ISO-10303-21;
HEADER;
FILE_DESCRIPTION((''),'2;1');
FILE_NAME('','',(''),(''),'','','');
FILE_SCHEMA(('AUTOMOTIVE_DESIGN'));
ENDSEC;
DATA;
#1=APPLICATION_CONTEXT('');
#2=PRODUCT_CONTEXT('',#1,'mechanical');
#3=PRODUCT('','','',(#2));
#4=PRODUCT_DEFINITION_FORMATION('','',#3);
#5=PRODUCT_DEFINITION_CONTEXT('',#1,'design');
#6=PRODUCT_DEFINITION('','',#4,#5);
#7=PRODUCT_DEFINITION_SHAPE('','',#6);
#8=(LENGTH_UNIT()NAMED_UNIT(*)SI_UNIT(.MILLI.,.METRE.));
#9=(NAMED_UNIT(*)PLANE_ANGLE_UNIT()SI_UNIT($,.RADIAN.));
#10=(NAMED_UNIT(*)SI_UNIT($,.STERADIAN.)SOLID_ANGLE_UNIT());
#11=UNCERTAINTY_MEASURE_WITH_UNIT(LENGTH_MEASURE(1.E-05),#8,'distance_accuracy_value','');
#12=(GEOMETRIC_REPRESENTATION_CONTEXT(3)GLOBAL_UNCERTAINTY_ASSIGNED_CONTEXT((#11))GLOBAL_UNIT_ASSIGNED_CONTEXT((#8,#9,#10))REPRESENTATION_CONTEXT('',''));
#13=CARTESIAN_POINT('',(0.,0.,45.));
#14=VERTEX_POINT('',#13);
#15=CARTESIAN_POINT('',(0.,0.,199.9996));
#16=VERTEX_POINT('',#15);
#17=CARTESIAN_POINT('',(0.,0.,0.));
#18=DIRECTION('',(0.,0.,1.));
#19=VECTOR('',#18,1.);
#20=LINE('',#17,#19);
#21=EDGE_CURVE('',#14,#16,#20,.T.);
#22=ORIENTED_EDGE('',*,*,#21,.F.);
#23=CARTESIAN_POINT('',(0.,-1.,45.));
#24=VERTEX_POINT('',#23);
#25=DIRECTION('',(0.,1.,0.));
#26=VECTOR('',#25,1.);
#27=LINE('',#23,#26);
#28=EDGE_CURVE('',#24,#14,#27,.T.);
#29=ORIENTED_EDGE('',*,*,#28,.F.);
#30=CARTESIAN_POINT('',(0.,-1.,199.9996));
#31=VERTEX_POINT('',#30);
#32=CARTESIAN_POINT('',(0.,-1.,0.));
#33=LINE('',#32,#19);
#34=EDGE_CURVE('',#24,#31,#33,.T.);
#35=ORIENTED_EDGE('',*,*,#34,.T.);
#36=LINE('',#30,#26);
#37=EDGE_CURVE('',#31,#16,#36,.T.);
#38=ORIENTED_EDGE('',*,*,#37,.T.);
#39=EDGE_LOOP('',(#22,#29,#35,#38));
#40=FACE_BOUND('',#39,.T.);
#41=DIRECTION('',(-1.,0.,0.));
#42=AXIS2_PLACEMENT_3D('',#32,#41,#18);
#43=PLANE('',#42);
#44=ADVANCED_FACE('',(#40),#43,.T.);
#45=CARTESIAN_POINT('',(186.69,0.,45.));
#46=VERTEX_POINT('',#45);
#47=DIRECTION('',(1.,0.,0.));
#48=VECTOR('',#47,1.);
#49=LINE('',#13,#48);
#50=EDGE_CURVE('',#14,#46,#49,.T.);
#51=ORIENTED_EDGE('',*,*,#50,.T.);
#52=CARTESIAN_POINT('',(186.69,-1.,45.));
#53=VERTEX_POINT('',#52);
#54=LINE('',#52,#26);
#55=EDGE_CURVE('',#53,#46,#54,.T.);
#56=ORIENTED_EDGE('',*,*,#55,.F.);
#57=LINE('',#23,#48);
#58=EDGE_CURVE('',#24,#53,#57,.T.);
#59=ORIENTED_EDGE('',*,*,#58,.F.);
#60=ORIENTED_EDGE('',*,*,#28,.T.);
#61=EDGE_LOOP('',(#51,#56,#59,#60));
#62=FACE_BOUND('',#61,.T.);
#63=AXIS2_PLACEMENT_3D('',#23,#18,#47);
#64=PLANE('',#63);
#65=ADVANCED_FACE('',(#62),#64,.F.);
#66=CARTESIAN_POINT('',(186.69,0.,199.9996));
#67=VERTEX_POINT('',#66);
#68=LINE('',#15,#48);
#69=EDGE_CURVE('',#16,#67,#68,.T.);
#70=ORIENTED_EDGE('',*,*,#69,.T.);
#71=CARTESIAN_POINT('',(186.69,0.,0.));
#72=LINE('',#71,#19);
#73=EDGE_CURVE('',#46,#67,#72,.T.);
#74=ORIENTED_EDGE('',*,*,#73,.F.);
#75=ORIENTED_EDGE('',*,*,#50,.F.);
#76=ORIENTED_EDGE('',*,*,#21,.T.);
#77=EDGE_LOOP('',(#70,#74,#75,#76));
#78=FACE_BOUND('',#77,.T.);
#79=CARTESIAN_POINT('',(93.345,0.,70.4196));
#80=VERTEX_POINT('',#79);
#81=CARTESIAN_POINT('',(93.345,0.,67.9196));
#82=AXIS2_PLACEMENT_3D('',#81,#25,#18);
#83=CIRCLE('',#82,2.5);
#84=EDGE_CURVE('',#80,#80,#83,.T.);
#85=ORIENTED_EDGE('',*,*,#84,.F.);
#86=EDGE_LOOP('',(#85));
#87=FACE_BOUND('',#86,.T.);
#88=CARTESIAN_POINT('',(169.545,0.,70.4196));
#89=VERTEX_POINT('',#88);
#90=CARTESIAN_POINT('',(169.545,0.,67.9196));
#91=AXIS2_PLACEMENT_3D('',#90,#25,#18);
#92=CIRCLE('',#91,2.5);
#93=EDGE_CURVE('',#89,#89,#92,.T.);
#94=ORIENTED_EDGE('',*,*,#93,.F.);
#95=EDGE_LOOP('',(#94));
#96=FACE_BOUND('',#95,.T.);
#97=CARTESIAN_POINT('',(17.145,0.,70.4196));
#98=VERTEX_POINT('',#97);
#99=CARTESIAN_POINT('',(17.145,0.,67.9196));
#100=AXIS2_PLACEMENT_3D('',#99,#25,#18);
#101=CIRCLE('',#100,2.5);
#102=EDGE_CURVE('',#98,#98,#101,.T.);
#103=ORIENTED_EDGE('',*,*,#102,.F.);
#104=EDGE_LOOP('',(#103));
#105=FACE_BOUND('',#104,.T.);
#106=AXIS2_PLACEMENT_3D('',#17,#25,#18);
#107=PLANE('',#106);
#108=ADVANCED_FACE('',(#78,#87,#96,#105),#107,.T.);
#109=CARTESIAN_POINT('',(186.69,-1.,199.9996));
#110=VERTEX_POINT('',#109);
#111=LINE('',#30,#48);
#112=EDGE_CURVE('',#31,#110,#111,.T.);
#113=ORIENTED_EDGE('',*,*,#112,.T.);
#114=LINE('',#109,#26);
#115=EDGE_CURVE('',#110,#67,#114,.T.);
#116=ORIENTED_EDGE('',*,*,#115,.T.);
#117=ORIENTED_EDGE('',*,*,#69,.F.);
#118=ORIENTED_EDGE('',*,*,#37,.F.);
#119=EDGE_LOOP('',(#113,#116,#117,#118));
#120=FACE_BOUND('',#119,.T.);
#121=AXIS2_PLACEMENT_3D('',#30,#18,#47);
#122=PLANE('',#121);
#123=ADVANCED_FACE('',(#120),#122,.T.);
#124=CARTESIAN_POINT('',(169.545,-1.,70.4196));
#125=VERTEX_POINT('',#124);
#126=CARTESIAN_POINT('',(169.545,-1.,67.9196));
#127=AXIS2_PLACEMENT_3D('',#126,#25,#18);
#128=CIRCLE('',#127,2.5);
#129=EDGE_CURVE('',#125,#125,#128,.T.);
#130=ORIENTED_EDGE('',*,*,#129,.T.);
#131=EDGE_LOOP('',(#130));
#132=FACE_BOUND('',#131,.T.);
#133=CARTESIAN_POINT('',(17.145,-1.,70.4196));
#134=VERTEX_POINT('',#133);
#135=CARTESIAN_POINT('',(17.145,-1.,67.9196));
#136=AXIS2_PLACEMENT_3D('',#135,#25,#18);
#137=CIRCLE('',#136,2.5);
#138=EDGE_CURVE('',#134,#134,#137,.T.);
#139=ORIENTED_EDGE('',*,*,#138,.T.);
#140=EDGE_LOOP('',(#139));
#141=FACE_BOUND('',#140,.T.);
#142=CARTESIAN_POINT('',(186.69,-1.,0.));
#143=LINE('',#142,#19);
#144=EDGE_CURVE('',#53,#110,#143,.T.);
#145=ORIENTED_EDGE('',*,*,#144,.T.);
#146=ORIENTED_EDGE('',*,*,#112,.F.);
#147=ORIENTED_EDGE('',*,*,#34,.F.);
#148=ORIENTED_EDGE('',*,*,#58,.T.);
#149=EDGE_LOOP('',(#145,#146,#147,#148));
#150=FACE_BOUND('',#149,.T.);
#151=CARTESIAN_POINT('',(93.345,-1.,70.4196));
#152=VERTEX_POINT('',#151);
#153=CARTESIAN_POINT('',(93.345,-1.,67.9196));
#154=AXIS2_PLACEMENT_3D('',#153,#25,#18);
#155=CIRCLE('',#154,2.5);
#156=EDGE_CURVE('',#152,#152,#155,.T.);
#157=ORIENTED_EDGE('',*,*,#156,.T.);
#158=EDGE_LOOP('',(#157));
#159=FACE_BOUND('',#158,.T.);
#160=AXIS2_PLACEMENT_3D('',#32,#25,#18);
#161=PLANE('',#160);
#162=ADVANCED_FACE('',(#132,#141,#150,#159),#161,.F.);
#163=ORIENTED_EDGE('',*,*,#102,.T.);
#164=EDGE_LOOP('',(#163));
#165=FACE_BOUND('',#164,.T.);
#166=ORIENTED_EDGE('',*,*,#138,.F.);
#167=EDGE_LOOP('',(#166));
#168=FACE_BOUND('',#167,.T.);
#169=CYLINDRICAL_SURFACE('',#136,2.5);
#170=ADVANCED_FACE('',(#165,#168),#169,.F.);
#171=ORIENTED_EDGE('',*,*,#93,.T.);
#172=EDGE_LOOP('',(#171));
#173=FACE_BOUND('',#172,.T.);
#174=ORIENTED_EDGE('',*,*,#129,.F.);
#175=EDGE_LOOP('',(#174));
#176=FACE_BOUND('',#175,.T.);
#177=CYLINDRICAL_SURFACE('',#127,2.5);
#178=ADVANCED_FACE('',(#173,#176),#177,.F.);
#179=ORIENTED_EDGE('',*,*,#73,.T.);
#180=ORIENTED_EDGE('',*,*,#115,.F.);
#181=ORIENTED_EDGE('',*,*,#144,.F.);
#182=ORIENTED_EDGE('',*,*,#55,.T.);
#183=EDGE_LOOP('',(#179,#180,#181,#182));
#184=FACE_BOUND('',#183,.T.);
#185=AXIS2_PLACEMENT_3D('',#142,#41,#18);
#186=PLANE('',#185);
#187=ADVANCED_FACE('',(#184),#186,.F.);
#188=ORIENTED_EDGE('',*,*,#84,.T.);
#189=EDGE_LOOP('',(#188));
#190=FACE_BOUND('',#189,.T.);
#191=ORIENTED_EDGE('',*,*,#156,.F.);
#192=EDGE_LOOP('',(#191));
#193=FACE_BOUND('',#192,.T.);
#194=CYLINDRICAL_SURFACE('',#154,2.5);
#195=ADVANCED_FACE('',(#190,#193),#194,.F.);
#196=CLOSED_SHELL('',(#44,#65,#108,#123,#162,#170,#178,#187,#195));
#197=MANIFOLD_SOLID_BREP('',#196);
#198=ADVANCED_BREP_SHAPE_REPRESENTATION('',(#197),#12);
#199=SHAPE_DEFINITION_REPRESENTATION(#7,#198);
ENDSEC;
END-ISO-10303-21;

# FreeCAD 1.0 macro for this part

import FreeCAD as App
import Part
import Sketcher
from FreeCAD import Vector
Q = App.Units.Quantity


def add_polygon(sketch, points):
    """Adds a closed chain of lines whose ends are joined by coincident constraints."""
    first, n = sketch.GeometryCount, len(points)
    for a, b in zip(points, points[1:] + points[:1]):
        sketch.addGeometry(Part.LineSegment(App.Vector(*a, 0), App.Vector(*b, 0)), False)
    for i in range(n):
        sketch.addConstraint(Sketcher.Constraint("Coincident", first + i, 2, first + (i + 1) % n, 1))

doc = App.newDocument("Part")
body = doc.addObject("PartDesign::Body", "Body")

# Sketch on XZ plane
sketch1 = doc.addObject("Sketcher::SketchObject", "Sketch")
body.addObject(sketch1)
sketch1.AttachmentSupport = (doc.XZ_Plane, [""])
sketch1.MapMode = "FlatFace"
add_polygon(sketch1, [(0, 0), (0, 200), (186.7, 200), (186.7, 0)])  # lines 0-3
sketch1.addGeometry(Part.Circle(Vector(17.1, 67.9, 0), Vector(0, 0, 1), 2.5), False)  # 4
sketch1.addGeometry(Part.Circle(Vector(93.3, 67.9, 0), Vector(0, 0, 1), 2.5), False)  # 5
sketch1.addGeometry(Part.Circle(Vector(169.5, 67.9, 0), Vector(0, 0, 1), 2.5), False)  # 6
sketch1.addConstraint([
    Sketcher.Constraint("Vertical", 0),
    Sketcher.Constraint("Horizontal", 1),
    Sketcher.Constraint("Vertical", 2),
    Sketcher.Constraint("Horizontal", 3),
    Sketcher.Constraint("Coincident", 3, 2, -1, 1),
    Sketcher.Constraint("Equal", 4, 5),
    Sketcher.Constraint("Equal", 5, 6),
    Sketcher.Constraint("Horizontal", 4, 3, 5, 3),
    Sketcher.Constraint("Horizontal", 5, 3, 6, 3),
    Sketcher.Constraint("Diameter", 4, Q("5 mm")),
    Sketcher.Constraint("DistanceX", 1, 1, 1, 2, Q("186.69 mm")),
    Sketcher.Constraint("DistanceX", 4, 3, 5, 3, Q("76.2 mm")),
    Sketcher.Constraint("DistanceX", 5, 3, 6, 3, Q("76.2 mm")),
    Sketcher.Constraint("DistanceY", 4, 3, 0, 2, Q("132.08 mm")),
    Sketcher.Constraint("DistanceY", 0, 1, 0, 2, Q("199.9996 mm")),
    Sketcher.Constraint("DistanceX", -1, 1, 4, 3, Q("17.145 mm")),
])
pad1 = doc.addObject("PartDesign::Pad", "Pad")
body.addObject(pad1)
pad1.Profile = sketch1
pad1.Length = 1

# Sketch on XZ plane
sketch2 = doc.addObject("Sketcher::SketchObject", "Sketch001")
body.addObject(sketch2)
sketch2.AttachmentSupport = (doc.XZ_Plane, [""])
sketch2.MapMode = "FlatFace"
add_polygon(sketch2, [(0, 0), (0, 45), (187, 45), (187, 0)])  # lines 0-3
sketch2.addConstraint([
    Sketcher.Constraint("Vertical", 0),
    Sketcher.Constraint("Horizontal", 1),
    Sketcher.Constraint("Vertical", 2),
    Sketcher.Constraint("Horizontal", 3),
    Sketcher.Constraint("Coincident", 3, 2, -1, 1),
    Sketcher.Constraint("DistanceY", 0, 1, 0, 2, Q("45 mm")),
    Sketcher.Constraint("DistanceX", 1, 1, 1, 2, Q("186.69 mm")),
])
pocket1 = doc.addObject("PartDesign::Pocket", "Pocket")
body.addObject(pocket1)
pocket1.Profile = sketch2
pocket1.Type = "ThroughAll"
pocket1.Midplane = True

doc.recompute()
